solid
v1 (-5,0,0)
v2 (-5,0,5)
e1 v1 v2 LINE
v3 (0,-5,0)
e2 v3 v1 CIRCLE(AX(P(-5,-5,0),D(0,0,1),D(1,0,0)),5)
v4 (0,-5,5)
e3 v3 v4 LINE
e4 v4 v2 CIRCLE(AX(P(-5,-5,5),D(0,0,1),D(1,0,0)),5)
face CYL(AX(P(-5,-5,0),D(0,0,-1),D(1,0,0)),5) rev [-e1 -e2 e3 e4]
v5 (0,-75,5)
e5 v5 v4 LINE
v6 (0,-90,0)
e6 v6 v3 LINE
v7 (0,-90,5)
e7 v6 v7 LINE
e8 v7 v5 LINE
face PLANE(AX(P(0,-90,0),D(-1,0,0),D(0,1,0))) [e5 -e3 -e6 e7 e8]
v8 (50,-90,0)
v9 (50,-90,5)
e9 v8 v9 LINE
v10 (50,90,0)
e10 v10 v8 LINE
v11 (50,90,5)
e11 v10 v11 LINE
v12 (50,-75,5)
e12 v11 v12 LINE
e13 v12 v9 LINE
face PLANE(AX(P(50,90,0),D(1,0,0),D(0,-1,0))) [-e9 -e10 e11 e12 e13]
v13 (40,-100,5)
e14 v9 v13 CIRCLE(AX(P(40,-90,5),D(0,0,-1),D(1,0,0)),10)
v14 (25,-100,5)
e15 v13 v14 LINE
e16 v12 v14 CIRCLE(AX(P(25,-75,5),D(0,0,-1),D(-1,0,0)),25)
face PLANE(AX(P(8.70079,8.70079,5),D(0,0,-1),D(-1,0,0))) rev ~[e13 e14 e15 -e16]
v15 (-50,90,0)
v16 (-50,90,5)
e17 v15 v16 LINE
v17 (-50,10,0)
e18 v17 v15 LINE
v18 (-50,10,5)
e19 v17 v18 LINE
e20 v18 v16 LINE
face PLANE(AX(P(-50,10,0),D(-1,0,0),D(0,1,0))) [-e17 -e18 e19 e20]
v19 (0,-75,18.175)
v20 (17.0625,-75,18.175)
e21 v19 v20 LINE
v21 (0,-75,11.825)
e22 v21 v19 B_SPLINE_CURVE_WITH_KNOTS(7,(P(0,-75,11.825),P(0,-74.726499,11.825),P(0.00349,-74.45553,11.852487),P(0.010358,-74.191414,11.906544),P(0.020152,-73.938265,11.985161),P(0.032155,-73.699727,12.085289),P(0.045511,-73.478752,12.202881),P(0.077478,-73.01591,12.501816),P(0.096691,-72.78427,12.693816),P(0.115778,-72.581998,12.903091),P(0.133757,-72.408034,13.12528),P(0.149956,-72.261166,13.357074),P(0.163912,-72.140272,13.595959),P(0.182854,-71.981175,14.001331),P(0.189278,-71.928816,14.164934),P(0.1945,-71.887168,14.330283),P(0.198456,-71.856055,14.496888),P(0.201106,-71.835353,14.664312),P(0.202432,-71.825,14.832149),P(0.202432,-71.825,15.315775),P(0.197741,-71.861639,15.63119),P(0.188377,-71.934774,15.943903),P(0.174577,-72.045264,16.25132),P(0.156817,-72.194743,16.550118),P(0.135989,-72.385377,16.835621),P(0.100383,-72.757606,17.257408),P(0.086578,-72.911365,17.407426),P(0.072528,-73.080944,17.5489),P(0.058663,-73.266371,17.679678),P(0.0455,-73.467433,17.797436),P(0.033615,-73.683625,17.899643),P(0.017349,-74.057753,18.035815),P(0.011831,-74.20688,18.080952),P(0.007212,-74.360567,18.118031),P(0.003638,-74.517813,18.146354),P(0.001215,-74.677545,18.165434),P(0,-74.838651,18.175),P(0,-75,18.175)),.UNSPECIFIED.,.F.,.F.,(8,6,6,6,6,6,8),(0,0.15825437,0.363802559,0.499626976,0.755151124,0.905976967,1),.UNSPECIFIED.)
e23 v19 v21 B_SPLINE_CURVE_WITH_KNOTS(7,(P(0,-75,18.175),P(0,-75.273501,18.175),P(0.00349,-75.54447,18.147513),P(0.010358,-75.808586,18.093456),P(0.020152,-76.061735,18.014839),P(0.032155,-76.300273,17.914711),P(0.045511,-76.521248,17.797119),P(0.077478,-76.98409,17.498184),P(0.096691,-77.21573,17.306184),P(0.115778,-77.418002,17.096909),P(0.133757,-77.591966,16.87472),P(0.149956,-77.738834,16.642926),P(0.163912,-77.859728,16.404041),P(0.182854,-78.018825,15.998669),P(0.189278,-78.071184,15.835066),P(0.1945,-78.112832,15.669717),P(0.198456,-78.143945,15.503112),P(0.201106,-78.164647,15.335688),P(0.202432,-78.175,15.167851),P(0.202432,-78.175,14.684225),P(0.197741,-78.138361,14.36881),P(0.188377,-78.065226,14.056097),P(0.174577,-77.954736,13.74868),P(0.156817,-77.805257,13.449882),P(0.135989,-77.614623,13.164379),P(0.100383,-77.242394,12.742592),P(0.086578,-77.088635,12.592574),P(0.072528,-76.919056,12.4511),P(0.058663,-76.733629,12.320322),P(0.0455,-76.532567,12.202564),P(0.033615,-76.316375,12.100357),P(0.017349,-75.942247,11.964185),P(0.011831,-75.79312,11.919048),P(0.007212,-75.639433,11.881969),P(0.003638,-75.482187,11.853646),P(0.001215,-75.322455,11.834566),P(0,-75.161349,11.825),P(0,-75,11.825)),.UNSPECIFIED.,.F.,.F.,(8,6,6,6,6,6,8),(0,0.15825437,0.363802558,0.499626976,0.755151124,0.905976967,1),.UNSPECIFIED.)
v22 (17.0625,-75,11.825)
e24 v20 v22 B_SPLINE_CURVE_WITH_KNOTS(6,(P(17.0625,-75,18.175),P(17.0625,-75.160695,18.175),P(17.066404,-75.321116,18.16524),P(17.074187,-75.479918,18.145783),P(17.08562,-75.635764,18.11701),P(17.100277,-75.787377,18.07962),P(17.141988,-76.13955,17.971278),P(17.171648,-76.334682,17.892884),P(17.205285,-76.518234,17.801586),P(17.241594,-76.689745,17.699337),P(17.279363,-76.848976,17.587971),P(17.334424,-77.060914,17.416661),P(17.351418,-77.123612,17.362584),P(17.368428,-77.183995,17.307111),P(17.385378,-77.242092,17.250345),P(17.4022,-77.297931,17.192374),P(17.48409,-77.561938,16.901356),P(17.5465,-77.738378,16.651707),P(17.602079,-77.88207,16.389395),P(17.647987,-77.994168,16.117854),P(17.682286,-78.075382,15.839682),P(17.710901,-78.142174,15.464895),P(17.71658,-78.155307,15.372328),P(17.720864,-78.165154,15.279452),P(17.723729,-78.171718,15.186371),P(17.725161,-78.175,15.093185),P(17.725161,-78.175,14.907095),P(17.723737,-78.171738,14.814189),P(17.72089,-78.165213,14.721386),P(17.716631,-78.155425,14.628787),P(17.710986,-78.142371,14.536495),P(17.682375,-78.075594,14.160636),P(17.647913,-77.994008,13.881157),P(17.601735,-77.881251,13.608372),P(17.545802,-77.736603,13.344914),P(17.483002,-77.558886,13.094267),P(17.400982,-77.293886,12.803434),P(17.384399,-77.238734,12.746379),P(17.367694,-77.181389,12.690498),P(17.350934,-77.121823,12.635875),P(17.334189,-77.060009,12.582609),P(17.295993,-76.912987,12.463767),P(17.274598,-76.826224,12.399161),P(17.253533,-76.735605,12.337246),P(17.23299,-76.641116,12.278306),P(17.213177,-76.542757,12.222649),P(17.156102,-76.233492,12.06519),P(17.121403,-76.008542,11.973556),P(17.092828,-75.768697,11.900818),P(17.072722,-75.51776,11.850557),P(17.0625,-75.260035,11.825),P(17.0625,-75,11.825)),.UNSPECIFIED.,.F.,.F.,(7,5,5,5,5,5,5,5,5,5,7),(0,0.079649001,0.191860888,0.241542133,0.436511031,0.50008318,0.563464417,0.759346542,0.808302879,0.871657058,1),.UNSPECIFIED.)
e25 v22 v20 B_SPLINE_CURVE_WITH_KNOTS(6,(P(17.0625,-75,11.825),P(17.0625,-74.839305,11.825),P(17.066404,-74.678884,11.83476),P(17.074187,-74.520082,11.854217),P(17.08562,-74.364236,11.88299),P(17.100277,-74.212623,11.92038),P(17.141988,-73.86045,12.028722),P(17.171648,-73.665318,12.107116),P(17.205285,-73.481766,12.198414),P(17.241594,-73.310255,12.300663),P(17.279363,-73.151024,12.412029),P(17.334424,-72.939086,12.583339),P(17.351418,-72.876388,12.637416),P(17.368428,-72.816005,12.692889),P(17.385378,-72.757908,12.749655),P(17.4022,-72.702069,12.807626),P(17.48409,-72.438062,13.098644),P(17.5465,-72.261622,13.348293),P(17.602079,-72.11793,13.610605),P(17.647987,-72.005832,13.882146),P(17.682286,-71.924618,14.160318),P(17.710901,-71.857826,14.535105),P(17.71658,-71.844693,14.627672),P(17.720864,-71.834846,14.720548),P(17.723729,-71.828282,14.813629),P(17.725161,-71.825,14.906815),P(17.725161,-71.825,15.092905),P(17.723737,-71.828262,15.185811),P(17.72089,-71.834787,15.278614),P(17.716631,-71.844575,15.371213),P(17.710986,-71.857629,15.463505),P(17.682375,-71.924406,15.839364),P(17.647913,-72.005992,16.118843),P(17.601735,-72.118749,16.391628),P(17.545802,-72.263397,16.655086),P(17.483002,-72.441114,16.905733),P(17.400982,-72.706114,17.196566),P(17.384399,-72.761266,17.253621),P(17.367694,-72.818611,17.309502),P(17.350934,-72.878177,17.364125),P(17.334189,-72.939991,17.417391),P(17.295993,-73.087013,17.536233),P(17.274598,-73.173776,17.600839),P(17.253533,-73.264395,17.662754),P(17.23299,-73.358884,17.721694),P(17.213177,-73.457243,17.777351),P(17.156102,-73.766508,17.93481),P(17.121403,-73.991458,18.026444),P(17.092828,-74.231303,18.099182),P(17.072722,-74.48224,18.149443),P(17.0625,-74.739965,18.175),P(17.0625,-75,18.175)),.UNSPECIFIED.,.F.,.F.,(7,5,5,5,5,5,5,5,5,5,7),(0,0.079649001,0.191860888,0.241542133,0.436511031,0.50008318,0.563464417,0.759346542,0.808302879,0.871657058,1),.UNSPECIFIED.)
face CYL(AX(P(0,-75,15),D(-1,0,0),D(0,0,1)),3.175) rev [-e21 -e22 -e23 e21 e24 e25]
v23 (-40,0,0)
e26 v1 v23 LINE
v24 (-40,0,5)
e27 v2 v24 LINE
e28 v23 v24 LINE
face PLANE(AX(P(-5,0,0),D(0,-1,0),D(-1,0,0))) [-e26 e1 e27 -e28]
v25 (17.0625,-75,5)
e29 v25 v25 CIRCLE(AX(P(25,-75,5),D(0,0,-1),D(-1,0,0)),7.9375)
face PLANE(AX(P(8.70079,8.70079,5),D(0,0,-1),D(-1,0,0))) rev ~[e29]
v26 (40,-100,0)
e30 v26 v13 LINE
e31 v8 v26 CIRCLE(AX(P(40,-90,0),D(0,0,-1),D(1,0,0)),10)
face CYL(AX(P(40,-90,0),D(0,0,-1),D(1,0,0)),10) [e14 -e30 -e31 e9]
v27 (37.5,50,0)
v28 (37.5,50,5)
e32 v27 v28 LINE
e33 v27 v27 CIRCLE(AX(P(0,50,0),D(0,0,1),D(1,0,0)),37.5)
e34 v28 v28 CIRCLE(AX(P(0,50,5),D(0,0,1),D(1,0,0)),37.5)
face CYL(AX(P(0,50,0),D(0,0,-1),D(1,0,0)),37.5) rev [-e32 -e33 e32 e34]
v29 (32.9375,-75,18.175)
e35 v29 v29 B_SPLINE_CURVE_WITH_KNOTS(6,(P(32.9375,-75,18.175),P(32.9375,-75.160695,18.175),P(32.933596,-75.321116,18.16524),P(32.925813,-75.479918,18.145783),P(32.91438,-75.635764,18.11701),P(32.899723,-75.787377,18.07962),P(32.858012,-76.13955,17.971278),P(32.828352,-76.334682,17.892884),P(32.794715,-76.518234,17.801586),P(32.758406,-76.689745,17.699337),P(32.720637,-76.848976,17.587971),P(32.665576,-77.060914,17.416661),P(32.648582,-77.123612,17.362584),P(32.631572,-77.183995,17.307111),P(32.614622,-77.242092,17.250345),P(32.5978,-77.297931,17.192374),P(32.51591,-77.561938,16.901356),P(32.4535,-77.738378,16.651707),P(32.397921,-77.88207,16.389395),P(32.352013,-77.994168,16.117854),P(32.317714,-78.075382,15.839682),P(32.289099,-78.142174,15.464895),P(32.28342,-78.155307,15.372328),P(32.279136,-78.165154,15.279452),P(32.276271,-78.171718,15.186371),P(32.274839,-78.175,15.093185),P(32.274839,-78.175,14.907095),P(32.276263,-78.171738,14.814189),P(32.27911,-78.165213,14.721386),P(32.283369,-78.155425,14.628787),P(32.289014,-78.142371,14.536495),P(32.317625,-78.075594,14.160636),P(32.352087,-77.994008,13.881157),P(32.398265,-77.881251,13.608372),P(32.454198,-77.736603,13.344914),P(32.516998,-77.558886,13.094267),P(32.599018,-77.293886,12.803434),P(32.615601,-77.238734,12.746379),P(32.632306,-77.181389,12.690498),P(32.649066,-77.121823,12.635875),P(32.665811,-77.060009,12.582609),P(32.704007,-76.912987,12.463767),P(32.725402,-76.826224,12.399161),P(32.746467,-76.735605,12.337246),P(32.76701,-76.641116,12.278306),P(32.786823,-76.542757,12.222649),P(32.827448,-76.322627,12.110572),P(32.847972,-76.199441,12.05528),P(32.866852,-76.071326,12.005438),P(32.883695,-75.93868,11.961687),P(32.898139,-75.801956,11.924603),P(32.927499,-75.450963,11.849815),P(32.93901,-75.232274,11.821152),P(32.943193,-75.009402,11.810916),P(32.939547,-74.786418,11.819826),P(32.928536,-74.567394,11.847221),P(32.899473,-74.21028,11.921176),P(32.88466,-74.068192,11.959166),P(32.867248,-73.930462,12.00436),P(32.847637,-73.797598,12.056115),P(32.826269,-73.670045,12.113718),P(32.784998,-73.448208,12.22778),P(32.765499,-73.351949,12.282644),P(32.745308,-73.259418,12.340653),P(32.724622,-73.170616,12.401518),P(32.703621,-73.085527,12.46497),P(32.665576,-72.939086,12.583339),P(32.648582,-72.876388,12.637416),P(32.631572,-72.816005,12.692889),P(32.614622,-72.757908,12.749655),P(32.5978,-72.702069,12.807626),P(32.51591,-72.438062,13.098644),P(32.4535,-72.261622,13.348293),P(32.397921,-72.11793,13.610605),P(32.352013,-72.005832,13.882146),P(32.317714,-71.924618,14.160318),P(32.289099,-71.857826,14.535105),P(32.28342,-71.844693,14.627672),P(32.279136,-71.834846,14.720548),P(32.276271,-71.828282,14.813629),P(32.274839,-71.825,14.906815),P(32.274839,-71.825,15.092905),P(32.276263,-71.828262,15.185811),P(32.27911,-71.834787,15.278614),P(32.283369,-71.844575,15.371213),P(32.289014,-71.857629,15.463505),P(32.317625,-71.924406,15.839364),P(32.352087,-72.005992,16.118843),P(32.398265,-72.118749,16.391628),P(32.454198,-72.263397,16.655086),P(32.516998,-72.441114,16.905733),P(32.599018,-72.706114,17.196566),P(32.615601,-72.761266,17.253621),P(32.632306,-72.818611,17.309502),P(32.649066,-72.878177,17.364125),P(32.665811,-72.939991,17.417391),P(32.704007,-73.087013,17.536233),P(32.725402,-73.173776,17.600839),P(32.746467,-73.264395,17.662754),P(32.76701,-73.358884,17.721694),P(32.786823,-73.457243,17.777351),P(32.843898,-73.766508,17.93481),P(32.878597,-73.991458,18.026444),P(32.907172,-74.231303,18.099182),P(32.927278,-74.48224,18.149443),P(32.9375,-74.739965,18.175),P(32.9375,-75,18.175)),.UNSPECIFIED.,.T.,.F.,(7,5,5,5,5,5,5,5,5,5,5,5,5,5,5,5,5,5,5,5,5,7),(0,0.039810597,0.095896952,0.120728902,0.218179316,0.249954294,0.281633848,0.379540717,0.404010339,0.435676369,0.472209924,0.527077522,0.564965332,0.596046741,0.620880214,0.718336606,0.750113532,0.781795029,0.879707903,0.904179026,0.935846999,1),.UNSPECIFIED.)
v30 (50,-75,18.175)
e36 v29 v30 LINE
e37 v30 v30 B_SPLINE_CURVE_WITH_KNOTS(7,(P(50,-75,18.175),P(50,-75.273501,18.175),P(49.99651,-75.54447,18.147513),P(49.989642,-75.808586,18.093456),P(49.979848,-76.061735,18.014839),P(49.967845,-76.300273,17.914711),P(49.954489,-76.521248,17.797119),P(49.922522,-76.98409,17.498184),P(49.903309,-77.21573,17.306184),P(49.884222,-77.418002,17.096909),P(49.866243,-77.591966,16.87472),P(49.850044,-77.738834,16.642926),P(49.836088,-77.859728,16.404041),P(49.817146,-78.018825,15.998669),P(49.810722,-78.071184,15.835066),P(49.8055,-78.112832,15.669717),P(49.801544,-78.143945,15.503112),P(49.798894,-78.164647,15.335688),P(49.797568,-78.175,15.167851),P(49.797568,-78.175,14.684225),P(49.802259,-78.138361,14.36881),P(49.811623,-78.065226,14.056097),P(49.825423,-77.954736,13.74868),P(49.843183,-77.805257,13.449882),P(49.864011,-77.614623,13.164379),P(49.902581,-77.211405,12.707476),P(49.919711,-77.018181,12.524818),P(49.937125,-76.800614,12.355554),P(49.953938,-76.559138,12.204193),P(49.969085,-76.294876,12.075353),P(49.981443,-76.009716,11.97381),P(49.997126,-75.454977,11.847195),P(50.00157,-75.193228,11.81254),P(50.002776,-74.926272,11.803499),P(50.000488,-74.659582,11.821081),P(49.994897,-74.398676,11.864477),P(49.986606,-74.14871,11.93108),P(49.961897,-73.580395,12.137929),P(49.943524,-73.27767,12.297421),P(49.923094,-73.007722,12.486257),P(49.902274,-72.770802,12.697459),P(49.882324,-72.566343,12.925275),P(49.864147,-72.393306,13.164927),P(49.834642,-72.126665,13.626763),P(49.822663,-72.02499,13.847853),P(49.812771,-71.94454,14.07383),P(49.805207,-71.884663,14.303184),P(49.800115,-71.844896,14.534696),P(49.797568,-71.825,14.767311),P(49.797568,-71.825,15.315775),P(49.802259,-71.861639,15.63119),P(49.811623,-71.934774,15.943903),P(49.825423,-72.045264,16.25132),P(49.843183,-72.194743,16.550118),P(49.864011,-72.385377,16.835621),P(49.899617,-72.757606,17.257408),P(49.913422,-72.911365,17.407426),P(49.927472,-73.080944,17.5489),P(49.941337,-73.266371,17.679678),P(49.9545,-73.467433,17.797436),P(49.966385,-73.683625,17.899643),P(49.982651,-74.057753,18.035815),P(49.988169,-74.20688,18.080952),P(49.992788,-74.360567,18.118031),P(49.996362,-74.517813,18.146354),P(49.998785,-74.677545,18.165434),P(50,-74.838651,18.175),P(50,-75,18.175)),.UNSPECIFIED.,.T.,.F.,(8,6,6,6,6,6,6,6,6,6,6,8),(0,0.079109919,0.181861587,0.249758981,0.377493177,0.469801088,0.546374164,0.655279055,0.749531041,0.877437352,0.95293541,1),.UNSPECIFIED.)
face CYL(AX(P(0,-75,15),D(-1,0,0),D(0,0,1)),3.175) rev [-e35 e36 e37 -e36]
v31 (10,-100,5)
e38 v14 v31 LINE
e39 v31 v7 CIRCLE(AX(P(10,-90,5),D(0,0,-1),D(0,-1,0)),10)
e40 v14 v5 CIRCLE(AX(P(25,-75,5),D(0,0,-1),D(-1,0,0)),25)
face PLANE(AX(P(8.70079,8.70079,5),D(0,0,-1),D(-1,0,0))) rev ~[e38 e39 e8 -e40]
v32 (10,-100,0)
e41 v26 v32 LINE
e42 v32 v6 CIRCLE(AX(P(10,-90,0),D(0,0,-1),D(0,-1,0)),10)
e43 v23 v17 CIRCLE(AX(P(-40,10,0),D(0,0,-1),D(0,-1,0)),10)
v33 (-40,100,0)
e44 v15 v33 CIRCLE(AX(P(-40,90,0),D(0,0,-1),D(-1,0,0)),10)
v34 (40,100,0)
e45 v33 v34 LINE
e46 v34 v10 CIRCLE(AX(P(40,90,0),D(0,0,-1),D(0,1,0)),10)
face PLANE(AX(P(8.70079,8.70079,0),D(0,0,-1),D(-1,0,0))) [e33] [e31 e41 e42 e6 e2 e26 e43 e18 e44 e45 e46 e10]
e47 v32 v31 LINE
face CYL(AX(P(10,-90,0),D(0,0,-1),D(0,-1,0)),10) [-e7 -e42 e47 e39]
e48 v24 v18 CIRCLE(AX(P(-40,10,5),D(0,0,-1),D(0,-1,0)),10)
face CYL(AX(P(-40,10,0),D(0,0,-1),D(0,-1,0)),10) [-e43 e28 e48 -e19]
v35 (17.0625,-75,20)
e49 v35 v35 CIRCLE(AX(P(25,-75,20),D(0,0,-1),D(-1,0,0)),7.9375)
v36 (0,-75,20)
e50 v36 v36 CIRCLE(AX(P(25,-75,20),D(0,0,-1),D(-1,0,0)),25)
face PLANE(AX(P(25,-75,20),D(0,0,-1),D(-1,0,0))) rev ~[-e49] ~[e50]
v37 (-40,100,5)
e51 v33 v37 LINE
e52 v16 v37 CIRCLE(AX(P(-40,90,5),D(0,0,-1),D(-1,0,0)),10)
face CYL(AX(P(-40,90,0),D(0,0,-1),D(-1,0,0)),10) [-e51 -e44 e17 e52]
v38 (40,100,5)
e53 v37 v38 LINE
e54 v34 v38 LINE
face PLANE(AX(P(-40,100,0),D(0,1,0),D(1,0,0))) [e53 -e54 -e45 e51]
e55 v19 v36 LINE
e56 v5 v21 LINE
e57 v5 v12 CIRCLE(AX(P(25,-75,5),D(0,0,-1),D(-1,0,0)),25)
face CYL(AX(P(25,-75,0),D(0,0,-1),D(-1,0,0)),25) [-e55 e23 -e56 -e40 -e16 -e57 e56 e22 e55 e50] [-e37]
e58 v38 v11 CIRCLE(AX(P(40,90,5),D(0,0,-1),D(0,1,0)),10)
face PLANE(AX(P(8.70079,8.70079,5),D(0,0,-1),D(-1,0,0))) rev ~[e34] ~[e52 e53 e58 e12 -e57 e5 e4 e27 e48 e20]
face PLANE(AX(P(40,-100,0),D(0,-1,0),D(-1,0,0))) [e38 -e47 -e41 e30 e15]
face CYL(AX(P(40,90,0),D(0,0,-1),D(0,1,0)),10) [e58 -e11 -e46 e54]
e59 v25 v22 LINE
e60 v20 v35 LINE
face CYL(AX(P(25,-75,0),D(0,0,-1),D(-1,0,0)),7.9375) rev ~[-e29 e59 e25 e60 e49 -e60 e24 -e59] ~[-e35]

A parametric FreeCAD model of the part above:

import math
import FreeCAD as App
import Part
import Sketcher

V = App.Vector
Q = App.Units.Quantity

doc = App.newDocument("Part")
body = doc.addObject("PartDesign::Body", "Body")

sketch1 = body.newObject("Sketcher::SketchObject", "Sketch")
sketch1.AttachmentSupport = (doc.getObject("XY_Plane"), [""])
sketch1.MapMode = "FlatFace"
sketch1.addGeometry([
    Part.LineSegment(V(-40, 0, 0), V(-5, 0, 0)),
    Part.ArcOfCircle(Part.Circle(V(-5, -5, 0), V(0, 0, 1), 5), math.radians(0), math.radians(90)),
    Part.LineSegment(V(0, -5, 0), V(0, -90, 0)),
    Part.ArcOfCircle(Part.Circle(V(10, -90, 0), V(0, 0, 1), 10), math.radians(180), math.radians(270)),
    Part.LineSegment(V(10, -100, 0), V(40, -100, 0)),
    Part.ArcOfCircle(Part.Circle(V(40, -90, 0), V(0, 0, 1), 10), math.radians(-90), math.radians(0)),
    Part.LineSegment(V(50, -90, 0), V(50, 90, 0)),
    Part.ArcOfCircle(Part.Circle(V(40, 90, 0), V(0, 0, 1), 10), math.radians(0), math.radians(90)),
    Part.LineSegment(V(40, 100, 0), V(-40, 100, 0)),
    Part.ArcOfCircle(Part.Circle(V(-40, 90, 0), V(0, 0, 1), 10), math.radians(90), math.radians(180)),
    Part.LineSegment(V(-50, 90, 0), V(-50, 10, 0)),
    Part.ArcOfCircle(Part.Circle(V(-40, 10, 0), V(0, 0, 1), 10), math.radians(180), math.radians(270)),
    Part.Circle(V(0, 50, 0), V(0, 0, 1), 38),
], False)
sketch1.addConstraint([
    Sketcher.Constraint("Tangent", 0, 2, 1, 2),
    Sketcher.Constraint("Tangent", 1, 1, 2, 1),
    Sketcher.Constraint("Tangent", 2, 2, 3, 1),
    Sketcher.Constraint("Tangent", 3, 2, 4, 1),
    Sketcher.Constraint("Tangent", 4, 2, 5, 1),
    Sketcher.Constraint("Tangent", 5, 2, 6, 1),
    Sketcher.Constraint("Tangent", 6, 2, 7, 1),
    Sketcher.Constraint("Tangent", 7, 2, 8, 1),
    Sketcher.Constraint("Tangent", 8, 2, 9, 1),
    Sketcher.Constraint("Tangent", 9, 2, 10, 1),
    Sketcher.Constraint("Tangent", 10, 2, 11, 1),
    Sketcher.Constraint("Tangent", 11, 2, 0, 1),
    Sketcher.Constraint("Horizontal", 0),
    Sketcher.Constraint("Vertical", 2),
    Sketcher.Constraint("Horizontal", 4),
    Sketcher.Constraint("Vertical", 6),
    Sketcher.Constraint("Horizontal", 8),
    Sketcher.Constraint("Vertical", 10),
    Sketcher.Constraint("Equal", 3, 5),
    Sketcher.Constraint("Equal", 5, 7),
    Sketcher.Constraint("Equal", 7, 9),
    Sketcher.Constraint("Equal", 9, 11),
    Sketcher.Constraint("Symmetric", 5, 3, 9, 3, -1, 1),
    Sketcher.Constraint("PointOnObject", 12, 3, -2),
    Sketcher.Constraint("PointOnObject", 0, 2, -1),
    Sketcher.Constraint("PointOnObject", 1, 1, -2),
    Sketcher.Constraint("Equal", 8, 10),
    Sketcher.Constraint("Diameter", 12, Q("75 mm")),
    Sketcher.Constraint("Radius", 1, Q("5 mm")),
    Sketcher.Constraint("Radius", 3, Q("10 mm")),
    Sketcher.Constraint("DistanceX", 0, 1, 0, 2, Q("35 mm")),
    Sketcher.Constraint("DistanceY", -1, 1, 12, 3, Q("50 mm")),
])
pad1 = body.newObject("PartDesign::Pad", "Pad")
pad1.Profile = sketch1
pad1.Length = 5

sketch2 = body.newObject("Sketcher::SketchObject", "Sketch001")
sketch2.AttachmentSupport = (doc.getObject("XY_Plane"), [""])
sketch2.MapMode = "FlatFace"
sketch2.addGeometry([
    Part.Circle(V(25, -75, 0), V(0, 0, 1), 25),
    Part.Circle(V(25, -75, 0), V(0, 0, 1), 8),
], False)
sketch2.addConstraint([
    Sketcher.Constraint("Coincident", 1, 3, 0, 3),
    Sketcher.Constraint("Diameter", 0, Q("50 mm")),
    Sketcher.Constraint("Diameter", 1, Q("15.875 mm")),
    Sketcher.Constraint("DistanceX", -1, 1, 0, 3, Q("25 mm")),
    Sketcher.Constraint("DistanceY", 0, 3, -1, 1, Q("75 mm")),
])
pad2 = body.newObject("PartDesign::Pad", "Pad001")
pad2.Profile = sketch2
pad2.Length = 20

sketch3 = body.newObject("Sketcher::SketchObject", "Sketch002")
sketch3.AttachmentSupport = (doc.getObject("YZ_Plane"), [""])
sketch3.MapMode = "FlatFace"
sketch3.addGeometry([
    Part.Circle(V(-75, -10, 0), V(0, 0, 1), 3.2),
    Part.Circle(V(-75, 15, 0), V(0, 0, 1), 3.2),
], False)
sketch3.addConstraint([
    Sketcher.Constraint("Equal", 0, 1),
    Sketcher.Constraint("Vertical", 0, 3, 1, 3),
    Sketcher.Constraint("Diameter", 0, Q("6.35 mm")),
    Sketcher.Constraint("DistanceX", 0, 3, -1, 1, Q("75 mm")),
    Sketcher.Constraint("DistanceY", 0, 3, -1, 1, Q("10 mm")),
    Sketcher.Constraint("DistanceY", -1, 1, 1, 3, Q("15 mm")),
])
pocket1 = body.newObject("PartDesign::Pocket", "Pocket")
pocket1.Profile = sketch3
pocket1.Length = 65
pocket1.Reversed = True

doc.recompute()
